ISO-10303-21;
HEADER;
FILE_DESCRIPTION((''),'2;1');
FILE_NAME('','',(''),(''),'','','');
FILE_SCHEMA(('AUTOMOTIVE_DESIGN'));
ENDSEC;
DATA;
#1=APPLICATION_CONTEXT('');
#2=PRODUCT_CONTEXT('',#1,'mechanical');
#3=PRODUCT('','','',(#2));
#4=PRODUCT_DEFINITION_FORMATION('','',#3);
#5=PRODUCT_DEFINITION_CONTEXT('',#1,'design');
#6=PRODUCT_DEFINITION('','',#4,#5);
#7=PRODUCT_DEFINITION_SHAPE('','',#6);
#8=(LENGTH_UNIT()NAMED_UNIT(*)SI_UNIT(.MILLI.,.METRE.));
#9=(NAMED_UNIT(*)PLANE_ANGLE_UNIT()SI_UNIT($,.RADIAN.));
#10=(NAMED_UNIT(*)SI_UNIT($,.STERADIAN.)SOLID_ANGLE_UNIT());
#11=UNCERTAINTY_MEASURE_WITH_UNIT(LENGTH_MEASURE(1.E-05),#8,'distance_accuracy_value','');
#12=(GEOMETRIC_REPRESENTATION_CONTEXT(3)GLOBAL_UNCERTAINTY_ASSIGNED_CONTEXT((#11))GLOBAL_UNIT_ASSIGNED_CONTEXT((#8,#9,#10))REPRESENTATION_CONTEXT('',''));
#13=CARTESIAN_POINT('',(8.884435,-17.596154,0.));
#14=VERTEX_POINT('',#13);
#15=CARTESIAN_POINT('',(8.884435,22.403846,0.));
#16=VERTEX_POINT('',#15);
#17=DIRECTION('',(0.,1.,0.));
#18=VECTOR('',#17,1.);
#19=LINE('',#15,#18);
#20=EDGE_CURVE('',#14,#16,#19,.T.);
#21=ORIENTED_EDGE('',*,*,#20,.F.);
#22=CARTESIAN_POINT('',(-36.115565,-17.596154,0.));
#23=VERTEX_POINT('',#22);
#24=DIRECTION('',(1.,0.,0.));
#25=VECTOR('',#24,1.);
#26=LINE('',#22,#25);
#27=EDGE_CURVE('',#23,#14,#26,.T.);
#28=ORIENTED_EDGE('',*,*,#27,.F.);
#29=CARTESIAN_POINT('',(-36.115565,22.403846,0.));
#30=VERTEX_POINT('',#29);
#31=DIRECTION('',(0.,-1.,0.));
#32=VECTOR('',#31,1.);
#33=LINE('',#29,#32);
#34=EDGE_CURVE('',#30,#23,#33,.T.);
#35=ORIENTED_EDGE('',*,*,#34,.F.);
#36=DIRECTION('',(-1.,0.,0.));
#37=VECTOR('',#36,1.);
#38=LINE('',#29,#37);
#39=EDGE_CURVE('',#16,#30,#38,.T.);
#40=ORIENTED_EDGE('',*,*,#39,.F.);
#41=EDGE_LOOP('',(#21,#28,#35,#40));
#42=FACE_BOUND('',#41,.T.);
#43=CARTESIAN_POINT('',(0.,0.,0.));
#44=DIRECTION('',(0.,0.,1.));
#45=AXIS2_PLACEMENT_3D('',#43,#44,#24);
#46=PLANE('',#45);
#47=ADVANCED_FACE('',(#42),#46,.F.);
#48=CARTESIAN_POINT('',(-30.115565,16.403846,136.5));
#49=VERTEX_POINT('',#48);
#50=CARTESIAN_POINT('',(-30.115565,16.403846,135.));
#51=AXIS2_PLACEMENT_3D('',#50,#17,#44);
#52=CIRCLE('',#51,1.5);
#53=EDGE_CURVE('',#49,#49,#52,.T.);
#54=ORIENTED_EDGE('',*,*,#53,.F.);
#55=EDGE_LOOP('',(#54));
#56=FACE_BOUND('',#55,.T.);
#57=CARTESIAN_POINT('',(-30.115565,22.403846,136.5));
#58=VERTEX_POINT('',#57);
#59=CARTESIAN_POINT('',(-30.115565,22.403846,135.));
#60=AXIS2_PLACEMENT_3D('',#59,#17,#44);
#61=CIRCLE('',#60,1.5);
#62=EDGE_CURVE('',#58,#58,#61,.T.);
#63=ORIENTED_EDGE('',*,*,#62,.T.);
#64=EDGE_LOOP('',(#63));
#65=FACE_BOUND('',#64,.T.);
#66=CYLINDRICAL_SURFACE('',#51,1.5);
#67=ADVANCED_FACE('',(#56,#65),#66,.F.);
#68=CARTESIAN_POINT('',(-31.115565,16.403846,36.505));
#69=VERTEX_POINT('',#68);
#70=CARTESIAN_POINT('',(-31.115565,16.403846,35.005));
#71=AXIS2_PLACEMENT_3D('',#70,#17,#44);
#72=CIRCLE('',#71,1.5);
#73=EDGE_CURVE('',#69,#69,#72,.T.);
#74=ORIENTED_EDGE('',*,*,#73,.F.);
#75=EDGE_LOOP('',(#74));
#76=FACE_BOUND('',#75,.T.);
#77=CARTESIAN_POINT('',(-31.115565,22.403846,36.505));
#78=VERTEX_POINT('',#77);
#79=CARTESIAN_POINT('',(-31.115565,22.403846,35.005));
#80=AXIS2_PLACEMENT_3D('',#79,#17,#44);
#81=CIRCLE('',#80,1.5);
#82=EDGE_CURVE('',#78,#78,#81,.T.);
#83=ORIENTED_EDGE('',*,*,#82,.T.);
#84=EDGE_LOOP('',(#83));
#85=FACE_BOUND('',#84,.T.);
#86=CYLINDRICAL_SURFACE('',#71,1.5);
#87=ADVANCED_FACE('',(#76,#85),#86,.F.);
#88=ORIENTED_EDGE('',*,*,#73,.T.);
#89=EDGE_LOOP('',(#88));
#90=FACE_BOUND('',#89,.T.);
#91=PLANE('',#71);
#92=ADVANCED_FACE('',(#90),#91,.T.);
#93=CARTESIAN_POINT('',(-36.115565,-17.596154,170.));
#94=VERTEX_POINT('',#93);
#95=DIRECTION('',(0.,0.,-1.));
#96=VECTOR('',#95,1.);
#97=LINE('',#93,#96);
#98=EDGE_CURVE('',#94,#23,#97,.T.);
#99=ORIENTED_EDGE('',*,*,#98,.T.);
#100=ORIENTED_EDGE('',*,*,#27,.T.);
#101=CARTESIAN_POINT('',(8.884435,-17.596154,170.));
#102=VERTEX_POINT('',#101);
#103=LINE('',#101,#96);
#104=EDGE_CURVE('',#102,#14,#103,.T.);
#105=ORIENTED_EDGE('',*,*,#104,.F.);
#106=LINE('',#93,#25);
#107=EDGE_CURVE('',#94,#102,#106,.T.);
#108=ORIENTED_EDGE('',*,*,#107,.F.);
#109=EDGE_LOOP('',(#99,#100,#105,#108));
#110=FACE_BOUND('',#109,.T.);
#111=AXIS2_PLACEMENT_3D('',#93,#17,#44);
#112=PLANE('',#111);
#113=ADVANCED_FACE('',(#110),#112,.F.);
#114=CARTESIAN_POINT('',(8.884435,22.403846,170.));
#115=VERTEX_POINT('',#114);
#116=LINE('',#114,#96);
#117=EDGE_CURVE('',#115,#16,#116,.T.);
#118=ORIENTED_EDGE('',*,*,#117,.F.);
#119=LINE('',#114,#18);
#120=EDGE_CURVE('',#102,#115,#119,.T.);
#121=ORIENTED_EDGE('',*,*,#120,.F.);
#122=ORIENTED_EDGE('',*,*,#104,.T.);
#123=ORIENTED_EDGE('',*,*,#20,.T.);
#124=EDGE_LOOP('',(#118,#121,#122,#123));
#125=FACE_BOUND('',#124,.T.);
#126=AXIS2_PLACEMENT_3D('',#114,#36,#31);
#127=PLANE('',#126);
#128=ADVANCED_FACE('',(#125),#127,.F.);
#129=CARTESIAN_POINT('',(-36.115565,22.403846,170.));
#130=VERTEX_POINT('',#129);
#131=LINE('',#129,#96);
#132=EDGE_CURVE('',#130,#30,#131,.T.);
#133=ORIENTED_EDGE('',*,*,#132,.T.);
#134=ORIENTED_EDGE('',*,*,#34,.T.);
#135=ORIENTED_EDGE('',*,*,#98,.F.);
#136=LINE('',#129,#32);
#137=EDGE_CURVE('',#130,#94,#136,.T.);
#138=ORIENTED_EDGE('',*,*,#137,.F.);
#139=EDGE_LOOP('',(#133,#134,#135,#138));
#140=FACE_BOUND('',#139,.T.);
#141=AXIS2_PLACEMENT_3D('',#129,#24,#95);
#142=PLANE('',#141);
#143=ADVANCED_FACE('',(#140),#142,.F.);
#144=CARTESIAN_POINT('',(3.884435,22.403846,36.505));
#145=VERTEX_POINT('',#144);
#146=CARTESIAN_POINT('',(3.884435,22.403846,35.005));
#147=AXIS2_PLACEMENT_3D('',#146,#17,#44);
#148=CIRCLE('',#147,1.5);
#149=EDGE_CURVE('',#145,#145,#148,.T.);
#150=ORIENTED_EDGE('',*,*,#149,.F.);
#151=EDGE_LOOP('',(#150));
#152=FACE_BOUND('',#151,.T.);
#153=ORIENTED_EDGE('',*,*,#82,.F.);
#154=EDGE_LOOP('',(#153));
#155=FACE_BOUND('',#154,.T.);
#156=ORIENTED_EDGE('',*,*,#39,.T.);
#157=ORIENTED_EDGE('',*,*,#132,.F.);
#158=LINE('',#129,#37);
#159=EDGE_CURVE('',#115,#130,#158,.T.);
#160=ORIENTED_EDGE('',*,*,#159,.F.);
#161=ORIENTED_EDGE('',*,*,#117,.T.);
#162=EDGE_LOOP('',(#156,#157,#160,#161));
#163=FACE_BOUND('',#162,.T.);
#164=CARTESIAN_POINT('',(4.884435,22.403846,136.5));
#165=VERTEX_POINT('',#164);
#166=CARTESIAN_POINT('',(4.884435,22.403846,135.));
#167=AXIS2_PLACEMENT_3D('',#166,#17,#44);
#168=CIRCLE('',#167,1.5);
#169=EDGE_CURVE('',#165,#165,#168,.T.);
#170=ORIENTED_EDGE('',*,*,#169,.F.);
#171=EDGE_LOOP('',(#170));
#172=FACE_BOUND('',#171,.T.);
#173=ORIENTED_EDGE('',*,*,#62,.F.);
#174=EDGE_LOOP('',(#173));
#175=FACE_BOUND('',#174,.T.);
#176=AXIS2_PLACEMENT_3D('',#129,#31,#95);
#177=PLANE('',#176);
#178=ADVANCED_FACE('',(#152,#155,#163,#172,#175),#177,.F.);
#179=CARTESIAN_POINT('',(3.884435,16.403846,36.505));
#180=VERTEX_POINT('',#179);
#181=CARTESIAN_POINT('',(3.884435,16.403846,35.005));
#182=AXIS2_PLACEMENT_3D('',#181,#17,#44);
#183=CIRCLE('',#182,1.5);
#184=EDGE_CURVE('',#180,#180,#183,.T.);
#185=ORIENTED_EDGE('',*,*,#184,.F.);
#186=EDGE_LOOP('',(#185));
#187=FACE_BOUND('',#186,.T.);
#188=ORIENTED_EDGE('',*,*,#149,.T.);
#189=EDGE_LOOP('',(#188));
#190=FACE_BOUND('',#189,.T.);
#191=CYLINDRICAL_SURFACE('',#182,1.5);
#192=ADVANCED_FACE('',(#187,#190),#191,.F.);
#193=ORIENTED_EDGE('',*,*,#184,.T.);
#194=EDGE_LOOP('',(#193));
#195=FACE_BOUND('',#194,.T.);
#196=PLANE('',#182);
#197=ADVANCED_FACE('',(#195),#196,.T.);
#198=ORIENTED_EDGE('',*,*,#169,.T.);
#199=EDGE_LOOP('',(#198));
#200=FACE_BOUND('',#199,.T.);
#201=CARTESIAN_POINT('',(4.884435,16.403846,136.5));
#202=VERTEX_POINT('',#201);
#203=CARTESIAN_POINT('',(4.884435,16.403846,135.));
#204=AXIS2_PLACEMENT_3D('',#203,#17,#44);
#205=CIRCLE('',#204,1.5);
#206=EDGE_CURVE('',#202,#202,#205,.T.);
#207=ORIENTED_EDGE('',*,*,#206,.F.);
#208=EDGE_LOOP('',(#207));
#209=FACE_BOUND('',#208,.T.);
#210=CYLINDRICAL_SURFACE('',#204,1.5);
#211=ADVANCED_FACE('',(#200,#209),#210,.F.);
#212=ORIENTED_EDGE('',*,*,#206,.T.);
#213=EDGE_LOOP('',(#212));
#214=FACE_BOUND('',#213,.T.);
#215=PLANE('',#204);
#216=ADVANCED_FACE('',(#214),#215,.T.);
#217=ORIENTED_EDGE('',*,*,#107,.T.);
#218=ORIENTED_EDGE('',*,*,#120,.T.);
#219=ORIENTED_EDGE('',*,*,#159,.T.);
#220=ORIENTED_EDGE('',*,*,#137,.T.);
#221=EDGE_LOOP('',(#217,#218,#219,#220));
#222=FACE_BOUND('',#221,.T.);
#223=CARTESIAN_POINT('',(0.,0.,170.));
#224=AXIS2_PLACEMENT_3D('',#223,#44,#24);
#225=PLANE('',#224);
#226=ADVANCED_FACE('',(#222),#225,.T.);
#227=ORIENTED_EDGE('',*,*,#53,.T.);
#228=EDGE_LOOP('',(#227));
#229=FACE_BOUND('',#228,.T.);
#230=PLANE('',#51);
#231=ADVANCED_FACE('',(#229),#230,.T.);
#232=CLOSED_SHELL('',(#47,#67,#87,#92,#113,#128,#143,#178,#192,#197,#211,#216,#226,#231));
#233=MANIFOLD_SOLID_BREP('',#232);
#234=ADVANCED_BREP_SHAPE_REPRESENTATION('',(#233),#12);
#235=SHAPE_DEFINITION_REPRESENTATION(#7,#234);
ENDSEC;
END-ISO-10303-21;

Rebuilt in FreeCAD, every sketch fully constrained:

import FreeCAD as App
import Part
import Sketcher
Q = App.Units.Quantity

doc = App.newDocument("Part")
body = doc.addObject("PartDesign::Body", "Body")

# Sketch on XY plane
sketch1 = doc.addObject("Sketcher::SketchObject", "Sketch")
body.addObject(sketch1)
sketch1.AttachmentSupport = (doc.XY_Plane, [""])
sketch1.MapMode = "FlatFace"
sketch1.addGeometry(Part.LineSegment(App.Vector(-36.115565, 22.403846, 0), App.Vector(-36.115565, -17.596154, 0)), False)
sketch1.addGeometry(Part.LineSegment(App.Vector(-36.115565, -17.596154, 0), App.Vector(8.884435, -17.596154, 0)), False)
sketch1.addGeometry(Part.LineSegment(App.Vector(8.884435, -17.596154, 0), App.Vector(8.884435, 22.403846, 0)), False)
sketch1.addGeometry(Part.LineSegment(App.Vector(8.884435, 22.403846, 0), App.Vector(-36.115565, 22.403846, 0)), False)
sketch1.addConstraint(Sketcher.Constraint("Coincident", 0, 2, 1, 1))
sketch1.addConstraint(Sketcher.Constraint("Coincident", 1, 2, 2, 1))
sketch1.addConstraint(Sketcher.Constraint("Coincident", 2, 2, 3, 1))
sketch1.addConstraint(Sketcher.Constraint("Coincident", 3, 2, 0, 1))
sketch1.addConstraint(Sketcher.Constraint("Vertical", 0))
sketch1.addConstraint(Sketcher.Constraint("Horizontal", 1))
sketch1.addConstraint(Sketcher.Constraint("Vertical", 2))
sketch1.addConstraint(Sketcher.Constraint("Horizontal", 3))
sketch1.addConstraint(Sketcher.Constraint("DistanceX", 1, 1, 1, 2, Q("45 mm")))
sketch1.addConstraint(Sketcher.Constraint("DistanceY", 0, 2, 0, 1, Q("40 mm")))
sketch1.addConstraint(Sketcher.Constraint("DistanceX", 0, 2, -1, 1, Q("36.115565 mm")))
sketch1.addConstraint(Sketcher.Constraint("DistanceY", 0, 2, -1, 1, Q("17.596154 mm")))
pad1 = doc.addObject("PartDesign::Pad", "Pad")
body.addObject(pad1)
pad1.Profile = sketch1
pad1.Length = 170

# Sketch on XZ plane
sketch2 = doc.addObject("Sketcher::SketchObject", "Sketch001")
body.addObject(sketch2)
sketch2.AttachmentSupport = (doc.XZ_Plane, [""])
sketch2.MapMode = "FlatFace"
sketch2.AttachmentOffset = App.Placement(App.Vector(0, 0, -22.403846), App.Rotation())
sketch2.addGeometry(Part.Circle(App.Vector(-31.115565, 35.005, 0), App.Vector(0, 0, 1), 1.5), False)
sketch2.addGeometry(Part.Circle(App.Vector(3.884435, 35.005, 0), App.Vector(0, 0, 1), 1.5), False)
sketch2.addGeometry(Part.Circle(App.Vector(-30.115565, 135, 0), App.Vector(0, 0, 1), 1.5), False)
sketch2.addGeometry(Part.Circle(App.Vector(4.884435, 135, 0), App.Vector(0, 0, 1), 1.5), False)
sketch2.addConstraint(Sketcher.Constraint("Equal", 0, 1))
sketch2.addConstraint(Sketcher.Constraint("Equal", 1, 2))
sketch2.addConstraint(Sketcher.Constraint("Equal", 2, 3))
sketch2.addConstraint(Sketcher.Constraint("Horizontal", 0, 3, 1, 3))
sketch2.addConstraint(Sketcher.Constraint("Horizontal", 2, 3, 3, 3))
sketch2.addConstraint(Sketcher.Constraint("Diameter", 0, Q("3 mm")))
sketch2.addConstraint(Sketcher.Constraint("DistanceY", -1, 1, 2, 3, Q("135 mm")))
sketch2.addConstraint(Sketcher.Constraint("DistanceX", 0, 3, 1, 3, Q("35 mm")))
sketch2.addConstraint(Sketcher.Constraint("DistanceX", 0, 3, 2, 3, Q("1 mm")))
sketch2.addConstraint(Sketcher.Constraint("DistanceX", 2, 3, 3, 3, Q("35 mm")))
sketch2.addConstraint(Sketcher.Constraint("DistanceY", -1, 1, 0, 3, Q("35.005 mm")))
sketch2.addConstraint(Sketcher.Constraint("DistanceX", 0, 3, -1, 1, Q("31.115565 mm")))
pocket1 = doc.addObject("PartDesign::Pocket", "Pocket")
body.addObject(pocket1)
pocket1.Profile = sketch2
pocket1.Length = 6
pocket1.Reversed = True

doc.recompute()
